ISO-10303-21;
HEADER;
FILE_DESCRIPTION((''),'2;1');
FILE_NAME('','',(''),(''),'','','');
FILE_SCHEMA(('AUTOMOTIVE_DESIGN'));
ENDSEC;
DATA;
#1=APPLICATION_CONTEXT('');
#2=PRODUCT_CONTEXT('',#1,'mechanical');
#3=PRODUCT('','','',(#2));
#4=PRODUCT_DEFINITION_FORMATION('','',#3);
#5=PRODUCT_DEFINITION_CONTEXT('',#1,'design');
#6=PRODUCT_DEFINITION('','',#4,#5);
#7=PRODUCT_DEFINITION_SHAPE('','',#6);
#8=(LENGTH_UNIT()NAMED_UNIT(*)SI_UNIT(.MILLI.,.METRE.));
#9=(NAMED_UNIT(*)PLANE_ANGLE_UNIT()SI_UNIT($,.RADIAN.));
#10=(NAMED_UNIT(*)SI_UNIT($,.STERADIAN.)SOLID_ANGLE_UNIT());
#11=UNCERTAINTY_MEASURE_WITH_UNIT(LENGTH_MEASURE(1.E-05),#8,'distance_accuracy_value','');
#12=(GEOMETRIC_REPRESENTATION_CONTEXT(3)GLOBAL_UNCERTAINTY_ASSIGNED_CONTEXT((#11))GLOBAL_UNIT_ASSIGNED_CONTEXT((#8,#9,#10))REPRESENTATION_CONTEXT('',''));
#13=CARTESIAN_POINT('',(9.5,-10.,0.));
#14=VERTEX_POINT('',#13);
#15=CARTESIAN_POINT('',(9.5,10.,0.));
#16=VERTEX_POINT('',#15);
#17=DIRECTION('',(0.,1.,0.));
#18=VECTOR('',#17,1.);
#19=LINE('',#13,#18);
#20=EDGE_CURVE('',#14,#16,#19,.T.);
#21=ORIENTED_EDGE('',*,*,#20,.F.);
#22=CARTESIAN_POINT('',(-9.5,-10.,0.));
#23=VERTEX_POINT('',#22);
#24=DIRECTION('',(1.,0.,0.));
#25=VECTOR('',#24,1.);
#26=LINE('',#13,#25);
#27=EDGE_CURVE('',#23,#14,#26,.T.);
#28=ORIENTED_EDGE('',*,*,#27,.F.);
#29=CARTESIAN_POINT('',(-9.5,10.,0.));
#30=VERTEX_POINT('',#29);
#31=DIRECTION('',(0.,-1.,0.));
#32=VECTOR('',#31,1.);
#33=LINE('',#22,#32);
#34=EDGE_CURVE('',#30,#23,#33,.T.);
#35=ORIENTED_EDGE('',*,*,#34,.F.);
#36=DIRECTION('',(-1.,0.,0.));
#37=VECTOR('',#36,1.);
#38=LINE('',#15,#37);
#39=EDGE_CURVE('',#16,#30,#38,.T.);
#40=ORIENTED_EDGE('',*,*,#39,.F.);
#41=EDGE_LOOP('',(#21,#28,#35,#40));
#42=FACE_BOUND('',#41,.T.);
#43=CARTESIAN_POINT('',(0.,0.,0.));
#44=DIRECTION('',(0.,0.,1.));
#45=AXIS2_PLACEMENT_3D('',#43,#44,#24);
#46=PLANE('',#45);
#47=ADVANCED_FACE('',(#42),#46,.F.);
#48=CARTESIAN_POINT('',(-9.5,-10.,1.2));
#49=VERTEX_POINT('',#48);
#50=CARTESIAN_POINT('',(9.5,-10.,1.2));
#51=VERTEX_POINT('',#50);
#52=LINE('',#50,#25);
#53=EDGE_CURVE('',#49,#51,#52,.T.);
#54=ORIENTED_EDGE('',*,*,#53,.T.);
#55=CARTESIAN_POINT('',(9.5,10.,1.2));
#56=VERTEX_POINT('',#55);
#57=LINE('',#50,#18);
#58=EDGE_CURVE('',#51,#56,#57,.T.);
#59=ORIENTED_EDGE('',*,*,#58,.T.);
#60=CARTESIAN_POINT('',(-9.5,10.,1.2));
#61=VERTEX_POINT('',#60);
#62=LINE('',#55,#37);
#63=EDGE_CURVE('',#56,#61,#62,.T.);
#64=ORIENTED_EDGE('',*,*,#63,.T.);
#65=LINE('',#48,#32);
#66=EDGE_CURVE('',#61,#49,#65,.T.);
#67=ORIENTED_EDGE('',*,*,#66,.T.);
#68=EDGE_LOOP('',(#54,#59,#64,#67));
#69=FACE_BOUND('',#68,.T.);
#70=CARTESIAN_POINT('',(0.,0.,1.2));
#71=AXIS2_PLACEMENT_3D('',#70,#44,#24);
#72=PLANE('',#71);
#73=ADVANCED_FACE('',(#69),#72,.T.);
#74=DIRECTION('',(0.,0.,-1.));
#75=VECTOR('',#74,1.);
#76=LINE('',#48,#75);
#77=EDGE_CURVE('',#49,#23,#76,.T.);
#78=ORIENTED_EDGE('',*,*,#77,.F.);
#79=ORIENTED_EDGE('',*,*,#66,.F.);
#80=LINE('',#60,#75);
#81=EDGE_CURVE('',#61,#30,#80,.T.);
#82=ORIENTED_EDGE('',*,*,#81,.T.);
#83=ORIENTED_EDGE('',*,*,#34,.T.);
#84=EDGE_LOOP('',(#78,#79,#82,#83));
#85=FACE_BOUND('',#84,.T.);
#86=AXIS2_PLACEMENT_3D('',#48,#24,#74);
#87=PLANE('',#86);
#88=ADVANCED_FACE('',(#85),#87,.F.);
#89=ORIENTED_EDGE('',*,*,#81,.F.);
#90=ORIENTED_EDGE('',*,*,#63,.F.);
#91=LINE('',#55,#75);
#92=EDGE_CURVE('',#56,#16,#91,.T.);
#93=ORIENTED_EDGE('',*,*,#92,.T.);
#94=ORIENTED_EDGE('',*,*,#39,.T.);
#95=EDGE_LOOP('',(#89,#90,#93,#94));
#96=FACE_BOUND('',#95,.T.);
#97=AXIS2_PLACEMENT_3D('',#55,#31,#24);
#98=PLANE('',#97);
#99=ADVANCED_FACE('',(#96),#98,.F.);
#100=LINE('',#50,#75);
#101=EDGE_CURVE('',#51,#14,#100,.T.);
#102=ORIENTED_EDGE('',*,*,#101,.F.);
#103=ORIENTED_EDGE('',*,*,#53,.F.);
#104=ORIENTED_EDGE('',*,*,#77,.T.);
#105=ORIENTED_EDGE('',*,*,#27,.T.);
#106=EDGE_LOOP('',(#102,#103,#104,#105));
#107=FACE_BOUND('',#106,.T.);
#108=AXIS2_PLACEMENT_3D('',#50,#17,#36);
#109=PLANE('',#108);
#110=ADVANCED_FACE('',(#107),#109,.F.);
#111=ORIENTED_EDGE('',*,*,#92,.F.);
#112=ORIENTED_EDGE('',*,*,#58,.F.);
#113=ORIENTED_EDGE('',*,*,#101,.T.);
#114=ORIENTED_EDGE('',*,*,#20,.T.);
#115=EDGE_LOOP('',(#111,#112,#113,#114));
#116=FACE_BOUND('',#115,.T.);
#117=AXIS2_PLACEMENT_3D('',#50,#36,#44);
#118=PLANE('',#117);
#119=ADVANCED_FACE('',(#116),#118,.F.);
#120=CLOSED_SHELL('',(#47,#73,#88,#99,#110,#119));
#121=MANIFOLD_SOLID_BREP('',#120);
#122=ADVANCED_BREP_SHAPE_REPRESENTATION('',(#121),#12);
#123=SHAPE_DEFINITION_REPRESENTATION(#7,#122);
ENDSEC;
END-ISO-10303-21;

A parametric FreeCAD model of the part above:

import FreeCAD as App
import Part
import Sketcher
from FreeCAD import Vector

doc = App.newDocument("Part")
body = doc.addObject("PartDesign::Body", "Body")

# Sketch on XY plane
sketch1 = body.newObject("Sketcher::SketchObject", "Sketch")
sketch1.AttachmentSupport = (doc.getObject("XY_Plane"), [""])
sketch1.MapMode = "FlatFace"
sketch1.addGeometry([
    Part.LineSegment(Vector(-10, 10, 0), Vector(-10, -10, 0)),
    Part.LineSegment(Vector(-10, -10, 0), Vector(10, -10, 0)),
    Part.LineSegment(Vector(10, -10, 0), Vector(10, 10, 0)),
    Part.LineSegment(Vector(10, 10, 0), Vector(-10, 10, 0)),
], False)
sketch1.addConstraint([
    Sketcher.Constraint("Coincident", 0, 2, 1, 1),
    Sketcher.Constraint("Coincident", 1, 2, 2, 1),
    Sketcher.Constraint("Coincident", 2, 2, 3, 1),
    Sketcher.Constraint("Coincident", 3, 2, 0, 1),
    Sketcher.Constraint("Vertical", 0),
    Sketcher.Constraint("Horizontal", 1),
    Sketcher.Constraint("Vertical", 2),
    Sketcher.Constraint("Horizontal", 3),
    Sketcher.Constraint("Symmetric", 0, 2, 2, 2, -1, 1),
    Sketcher.Constraint("DistanceX", 1, 1, 1, 2, 19.0),
    Sketcher.Constraint("DistanceY", 0, 2, 0, 1, 20.0),
])
pad1 = body.newObject("PartDesign::Pad", "Pad")
pad1.Profile = sketch1
pad1.Length = 1.2

doc.recompute()
